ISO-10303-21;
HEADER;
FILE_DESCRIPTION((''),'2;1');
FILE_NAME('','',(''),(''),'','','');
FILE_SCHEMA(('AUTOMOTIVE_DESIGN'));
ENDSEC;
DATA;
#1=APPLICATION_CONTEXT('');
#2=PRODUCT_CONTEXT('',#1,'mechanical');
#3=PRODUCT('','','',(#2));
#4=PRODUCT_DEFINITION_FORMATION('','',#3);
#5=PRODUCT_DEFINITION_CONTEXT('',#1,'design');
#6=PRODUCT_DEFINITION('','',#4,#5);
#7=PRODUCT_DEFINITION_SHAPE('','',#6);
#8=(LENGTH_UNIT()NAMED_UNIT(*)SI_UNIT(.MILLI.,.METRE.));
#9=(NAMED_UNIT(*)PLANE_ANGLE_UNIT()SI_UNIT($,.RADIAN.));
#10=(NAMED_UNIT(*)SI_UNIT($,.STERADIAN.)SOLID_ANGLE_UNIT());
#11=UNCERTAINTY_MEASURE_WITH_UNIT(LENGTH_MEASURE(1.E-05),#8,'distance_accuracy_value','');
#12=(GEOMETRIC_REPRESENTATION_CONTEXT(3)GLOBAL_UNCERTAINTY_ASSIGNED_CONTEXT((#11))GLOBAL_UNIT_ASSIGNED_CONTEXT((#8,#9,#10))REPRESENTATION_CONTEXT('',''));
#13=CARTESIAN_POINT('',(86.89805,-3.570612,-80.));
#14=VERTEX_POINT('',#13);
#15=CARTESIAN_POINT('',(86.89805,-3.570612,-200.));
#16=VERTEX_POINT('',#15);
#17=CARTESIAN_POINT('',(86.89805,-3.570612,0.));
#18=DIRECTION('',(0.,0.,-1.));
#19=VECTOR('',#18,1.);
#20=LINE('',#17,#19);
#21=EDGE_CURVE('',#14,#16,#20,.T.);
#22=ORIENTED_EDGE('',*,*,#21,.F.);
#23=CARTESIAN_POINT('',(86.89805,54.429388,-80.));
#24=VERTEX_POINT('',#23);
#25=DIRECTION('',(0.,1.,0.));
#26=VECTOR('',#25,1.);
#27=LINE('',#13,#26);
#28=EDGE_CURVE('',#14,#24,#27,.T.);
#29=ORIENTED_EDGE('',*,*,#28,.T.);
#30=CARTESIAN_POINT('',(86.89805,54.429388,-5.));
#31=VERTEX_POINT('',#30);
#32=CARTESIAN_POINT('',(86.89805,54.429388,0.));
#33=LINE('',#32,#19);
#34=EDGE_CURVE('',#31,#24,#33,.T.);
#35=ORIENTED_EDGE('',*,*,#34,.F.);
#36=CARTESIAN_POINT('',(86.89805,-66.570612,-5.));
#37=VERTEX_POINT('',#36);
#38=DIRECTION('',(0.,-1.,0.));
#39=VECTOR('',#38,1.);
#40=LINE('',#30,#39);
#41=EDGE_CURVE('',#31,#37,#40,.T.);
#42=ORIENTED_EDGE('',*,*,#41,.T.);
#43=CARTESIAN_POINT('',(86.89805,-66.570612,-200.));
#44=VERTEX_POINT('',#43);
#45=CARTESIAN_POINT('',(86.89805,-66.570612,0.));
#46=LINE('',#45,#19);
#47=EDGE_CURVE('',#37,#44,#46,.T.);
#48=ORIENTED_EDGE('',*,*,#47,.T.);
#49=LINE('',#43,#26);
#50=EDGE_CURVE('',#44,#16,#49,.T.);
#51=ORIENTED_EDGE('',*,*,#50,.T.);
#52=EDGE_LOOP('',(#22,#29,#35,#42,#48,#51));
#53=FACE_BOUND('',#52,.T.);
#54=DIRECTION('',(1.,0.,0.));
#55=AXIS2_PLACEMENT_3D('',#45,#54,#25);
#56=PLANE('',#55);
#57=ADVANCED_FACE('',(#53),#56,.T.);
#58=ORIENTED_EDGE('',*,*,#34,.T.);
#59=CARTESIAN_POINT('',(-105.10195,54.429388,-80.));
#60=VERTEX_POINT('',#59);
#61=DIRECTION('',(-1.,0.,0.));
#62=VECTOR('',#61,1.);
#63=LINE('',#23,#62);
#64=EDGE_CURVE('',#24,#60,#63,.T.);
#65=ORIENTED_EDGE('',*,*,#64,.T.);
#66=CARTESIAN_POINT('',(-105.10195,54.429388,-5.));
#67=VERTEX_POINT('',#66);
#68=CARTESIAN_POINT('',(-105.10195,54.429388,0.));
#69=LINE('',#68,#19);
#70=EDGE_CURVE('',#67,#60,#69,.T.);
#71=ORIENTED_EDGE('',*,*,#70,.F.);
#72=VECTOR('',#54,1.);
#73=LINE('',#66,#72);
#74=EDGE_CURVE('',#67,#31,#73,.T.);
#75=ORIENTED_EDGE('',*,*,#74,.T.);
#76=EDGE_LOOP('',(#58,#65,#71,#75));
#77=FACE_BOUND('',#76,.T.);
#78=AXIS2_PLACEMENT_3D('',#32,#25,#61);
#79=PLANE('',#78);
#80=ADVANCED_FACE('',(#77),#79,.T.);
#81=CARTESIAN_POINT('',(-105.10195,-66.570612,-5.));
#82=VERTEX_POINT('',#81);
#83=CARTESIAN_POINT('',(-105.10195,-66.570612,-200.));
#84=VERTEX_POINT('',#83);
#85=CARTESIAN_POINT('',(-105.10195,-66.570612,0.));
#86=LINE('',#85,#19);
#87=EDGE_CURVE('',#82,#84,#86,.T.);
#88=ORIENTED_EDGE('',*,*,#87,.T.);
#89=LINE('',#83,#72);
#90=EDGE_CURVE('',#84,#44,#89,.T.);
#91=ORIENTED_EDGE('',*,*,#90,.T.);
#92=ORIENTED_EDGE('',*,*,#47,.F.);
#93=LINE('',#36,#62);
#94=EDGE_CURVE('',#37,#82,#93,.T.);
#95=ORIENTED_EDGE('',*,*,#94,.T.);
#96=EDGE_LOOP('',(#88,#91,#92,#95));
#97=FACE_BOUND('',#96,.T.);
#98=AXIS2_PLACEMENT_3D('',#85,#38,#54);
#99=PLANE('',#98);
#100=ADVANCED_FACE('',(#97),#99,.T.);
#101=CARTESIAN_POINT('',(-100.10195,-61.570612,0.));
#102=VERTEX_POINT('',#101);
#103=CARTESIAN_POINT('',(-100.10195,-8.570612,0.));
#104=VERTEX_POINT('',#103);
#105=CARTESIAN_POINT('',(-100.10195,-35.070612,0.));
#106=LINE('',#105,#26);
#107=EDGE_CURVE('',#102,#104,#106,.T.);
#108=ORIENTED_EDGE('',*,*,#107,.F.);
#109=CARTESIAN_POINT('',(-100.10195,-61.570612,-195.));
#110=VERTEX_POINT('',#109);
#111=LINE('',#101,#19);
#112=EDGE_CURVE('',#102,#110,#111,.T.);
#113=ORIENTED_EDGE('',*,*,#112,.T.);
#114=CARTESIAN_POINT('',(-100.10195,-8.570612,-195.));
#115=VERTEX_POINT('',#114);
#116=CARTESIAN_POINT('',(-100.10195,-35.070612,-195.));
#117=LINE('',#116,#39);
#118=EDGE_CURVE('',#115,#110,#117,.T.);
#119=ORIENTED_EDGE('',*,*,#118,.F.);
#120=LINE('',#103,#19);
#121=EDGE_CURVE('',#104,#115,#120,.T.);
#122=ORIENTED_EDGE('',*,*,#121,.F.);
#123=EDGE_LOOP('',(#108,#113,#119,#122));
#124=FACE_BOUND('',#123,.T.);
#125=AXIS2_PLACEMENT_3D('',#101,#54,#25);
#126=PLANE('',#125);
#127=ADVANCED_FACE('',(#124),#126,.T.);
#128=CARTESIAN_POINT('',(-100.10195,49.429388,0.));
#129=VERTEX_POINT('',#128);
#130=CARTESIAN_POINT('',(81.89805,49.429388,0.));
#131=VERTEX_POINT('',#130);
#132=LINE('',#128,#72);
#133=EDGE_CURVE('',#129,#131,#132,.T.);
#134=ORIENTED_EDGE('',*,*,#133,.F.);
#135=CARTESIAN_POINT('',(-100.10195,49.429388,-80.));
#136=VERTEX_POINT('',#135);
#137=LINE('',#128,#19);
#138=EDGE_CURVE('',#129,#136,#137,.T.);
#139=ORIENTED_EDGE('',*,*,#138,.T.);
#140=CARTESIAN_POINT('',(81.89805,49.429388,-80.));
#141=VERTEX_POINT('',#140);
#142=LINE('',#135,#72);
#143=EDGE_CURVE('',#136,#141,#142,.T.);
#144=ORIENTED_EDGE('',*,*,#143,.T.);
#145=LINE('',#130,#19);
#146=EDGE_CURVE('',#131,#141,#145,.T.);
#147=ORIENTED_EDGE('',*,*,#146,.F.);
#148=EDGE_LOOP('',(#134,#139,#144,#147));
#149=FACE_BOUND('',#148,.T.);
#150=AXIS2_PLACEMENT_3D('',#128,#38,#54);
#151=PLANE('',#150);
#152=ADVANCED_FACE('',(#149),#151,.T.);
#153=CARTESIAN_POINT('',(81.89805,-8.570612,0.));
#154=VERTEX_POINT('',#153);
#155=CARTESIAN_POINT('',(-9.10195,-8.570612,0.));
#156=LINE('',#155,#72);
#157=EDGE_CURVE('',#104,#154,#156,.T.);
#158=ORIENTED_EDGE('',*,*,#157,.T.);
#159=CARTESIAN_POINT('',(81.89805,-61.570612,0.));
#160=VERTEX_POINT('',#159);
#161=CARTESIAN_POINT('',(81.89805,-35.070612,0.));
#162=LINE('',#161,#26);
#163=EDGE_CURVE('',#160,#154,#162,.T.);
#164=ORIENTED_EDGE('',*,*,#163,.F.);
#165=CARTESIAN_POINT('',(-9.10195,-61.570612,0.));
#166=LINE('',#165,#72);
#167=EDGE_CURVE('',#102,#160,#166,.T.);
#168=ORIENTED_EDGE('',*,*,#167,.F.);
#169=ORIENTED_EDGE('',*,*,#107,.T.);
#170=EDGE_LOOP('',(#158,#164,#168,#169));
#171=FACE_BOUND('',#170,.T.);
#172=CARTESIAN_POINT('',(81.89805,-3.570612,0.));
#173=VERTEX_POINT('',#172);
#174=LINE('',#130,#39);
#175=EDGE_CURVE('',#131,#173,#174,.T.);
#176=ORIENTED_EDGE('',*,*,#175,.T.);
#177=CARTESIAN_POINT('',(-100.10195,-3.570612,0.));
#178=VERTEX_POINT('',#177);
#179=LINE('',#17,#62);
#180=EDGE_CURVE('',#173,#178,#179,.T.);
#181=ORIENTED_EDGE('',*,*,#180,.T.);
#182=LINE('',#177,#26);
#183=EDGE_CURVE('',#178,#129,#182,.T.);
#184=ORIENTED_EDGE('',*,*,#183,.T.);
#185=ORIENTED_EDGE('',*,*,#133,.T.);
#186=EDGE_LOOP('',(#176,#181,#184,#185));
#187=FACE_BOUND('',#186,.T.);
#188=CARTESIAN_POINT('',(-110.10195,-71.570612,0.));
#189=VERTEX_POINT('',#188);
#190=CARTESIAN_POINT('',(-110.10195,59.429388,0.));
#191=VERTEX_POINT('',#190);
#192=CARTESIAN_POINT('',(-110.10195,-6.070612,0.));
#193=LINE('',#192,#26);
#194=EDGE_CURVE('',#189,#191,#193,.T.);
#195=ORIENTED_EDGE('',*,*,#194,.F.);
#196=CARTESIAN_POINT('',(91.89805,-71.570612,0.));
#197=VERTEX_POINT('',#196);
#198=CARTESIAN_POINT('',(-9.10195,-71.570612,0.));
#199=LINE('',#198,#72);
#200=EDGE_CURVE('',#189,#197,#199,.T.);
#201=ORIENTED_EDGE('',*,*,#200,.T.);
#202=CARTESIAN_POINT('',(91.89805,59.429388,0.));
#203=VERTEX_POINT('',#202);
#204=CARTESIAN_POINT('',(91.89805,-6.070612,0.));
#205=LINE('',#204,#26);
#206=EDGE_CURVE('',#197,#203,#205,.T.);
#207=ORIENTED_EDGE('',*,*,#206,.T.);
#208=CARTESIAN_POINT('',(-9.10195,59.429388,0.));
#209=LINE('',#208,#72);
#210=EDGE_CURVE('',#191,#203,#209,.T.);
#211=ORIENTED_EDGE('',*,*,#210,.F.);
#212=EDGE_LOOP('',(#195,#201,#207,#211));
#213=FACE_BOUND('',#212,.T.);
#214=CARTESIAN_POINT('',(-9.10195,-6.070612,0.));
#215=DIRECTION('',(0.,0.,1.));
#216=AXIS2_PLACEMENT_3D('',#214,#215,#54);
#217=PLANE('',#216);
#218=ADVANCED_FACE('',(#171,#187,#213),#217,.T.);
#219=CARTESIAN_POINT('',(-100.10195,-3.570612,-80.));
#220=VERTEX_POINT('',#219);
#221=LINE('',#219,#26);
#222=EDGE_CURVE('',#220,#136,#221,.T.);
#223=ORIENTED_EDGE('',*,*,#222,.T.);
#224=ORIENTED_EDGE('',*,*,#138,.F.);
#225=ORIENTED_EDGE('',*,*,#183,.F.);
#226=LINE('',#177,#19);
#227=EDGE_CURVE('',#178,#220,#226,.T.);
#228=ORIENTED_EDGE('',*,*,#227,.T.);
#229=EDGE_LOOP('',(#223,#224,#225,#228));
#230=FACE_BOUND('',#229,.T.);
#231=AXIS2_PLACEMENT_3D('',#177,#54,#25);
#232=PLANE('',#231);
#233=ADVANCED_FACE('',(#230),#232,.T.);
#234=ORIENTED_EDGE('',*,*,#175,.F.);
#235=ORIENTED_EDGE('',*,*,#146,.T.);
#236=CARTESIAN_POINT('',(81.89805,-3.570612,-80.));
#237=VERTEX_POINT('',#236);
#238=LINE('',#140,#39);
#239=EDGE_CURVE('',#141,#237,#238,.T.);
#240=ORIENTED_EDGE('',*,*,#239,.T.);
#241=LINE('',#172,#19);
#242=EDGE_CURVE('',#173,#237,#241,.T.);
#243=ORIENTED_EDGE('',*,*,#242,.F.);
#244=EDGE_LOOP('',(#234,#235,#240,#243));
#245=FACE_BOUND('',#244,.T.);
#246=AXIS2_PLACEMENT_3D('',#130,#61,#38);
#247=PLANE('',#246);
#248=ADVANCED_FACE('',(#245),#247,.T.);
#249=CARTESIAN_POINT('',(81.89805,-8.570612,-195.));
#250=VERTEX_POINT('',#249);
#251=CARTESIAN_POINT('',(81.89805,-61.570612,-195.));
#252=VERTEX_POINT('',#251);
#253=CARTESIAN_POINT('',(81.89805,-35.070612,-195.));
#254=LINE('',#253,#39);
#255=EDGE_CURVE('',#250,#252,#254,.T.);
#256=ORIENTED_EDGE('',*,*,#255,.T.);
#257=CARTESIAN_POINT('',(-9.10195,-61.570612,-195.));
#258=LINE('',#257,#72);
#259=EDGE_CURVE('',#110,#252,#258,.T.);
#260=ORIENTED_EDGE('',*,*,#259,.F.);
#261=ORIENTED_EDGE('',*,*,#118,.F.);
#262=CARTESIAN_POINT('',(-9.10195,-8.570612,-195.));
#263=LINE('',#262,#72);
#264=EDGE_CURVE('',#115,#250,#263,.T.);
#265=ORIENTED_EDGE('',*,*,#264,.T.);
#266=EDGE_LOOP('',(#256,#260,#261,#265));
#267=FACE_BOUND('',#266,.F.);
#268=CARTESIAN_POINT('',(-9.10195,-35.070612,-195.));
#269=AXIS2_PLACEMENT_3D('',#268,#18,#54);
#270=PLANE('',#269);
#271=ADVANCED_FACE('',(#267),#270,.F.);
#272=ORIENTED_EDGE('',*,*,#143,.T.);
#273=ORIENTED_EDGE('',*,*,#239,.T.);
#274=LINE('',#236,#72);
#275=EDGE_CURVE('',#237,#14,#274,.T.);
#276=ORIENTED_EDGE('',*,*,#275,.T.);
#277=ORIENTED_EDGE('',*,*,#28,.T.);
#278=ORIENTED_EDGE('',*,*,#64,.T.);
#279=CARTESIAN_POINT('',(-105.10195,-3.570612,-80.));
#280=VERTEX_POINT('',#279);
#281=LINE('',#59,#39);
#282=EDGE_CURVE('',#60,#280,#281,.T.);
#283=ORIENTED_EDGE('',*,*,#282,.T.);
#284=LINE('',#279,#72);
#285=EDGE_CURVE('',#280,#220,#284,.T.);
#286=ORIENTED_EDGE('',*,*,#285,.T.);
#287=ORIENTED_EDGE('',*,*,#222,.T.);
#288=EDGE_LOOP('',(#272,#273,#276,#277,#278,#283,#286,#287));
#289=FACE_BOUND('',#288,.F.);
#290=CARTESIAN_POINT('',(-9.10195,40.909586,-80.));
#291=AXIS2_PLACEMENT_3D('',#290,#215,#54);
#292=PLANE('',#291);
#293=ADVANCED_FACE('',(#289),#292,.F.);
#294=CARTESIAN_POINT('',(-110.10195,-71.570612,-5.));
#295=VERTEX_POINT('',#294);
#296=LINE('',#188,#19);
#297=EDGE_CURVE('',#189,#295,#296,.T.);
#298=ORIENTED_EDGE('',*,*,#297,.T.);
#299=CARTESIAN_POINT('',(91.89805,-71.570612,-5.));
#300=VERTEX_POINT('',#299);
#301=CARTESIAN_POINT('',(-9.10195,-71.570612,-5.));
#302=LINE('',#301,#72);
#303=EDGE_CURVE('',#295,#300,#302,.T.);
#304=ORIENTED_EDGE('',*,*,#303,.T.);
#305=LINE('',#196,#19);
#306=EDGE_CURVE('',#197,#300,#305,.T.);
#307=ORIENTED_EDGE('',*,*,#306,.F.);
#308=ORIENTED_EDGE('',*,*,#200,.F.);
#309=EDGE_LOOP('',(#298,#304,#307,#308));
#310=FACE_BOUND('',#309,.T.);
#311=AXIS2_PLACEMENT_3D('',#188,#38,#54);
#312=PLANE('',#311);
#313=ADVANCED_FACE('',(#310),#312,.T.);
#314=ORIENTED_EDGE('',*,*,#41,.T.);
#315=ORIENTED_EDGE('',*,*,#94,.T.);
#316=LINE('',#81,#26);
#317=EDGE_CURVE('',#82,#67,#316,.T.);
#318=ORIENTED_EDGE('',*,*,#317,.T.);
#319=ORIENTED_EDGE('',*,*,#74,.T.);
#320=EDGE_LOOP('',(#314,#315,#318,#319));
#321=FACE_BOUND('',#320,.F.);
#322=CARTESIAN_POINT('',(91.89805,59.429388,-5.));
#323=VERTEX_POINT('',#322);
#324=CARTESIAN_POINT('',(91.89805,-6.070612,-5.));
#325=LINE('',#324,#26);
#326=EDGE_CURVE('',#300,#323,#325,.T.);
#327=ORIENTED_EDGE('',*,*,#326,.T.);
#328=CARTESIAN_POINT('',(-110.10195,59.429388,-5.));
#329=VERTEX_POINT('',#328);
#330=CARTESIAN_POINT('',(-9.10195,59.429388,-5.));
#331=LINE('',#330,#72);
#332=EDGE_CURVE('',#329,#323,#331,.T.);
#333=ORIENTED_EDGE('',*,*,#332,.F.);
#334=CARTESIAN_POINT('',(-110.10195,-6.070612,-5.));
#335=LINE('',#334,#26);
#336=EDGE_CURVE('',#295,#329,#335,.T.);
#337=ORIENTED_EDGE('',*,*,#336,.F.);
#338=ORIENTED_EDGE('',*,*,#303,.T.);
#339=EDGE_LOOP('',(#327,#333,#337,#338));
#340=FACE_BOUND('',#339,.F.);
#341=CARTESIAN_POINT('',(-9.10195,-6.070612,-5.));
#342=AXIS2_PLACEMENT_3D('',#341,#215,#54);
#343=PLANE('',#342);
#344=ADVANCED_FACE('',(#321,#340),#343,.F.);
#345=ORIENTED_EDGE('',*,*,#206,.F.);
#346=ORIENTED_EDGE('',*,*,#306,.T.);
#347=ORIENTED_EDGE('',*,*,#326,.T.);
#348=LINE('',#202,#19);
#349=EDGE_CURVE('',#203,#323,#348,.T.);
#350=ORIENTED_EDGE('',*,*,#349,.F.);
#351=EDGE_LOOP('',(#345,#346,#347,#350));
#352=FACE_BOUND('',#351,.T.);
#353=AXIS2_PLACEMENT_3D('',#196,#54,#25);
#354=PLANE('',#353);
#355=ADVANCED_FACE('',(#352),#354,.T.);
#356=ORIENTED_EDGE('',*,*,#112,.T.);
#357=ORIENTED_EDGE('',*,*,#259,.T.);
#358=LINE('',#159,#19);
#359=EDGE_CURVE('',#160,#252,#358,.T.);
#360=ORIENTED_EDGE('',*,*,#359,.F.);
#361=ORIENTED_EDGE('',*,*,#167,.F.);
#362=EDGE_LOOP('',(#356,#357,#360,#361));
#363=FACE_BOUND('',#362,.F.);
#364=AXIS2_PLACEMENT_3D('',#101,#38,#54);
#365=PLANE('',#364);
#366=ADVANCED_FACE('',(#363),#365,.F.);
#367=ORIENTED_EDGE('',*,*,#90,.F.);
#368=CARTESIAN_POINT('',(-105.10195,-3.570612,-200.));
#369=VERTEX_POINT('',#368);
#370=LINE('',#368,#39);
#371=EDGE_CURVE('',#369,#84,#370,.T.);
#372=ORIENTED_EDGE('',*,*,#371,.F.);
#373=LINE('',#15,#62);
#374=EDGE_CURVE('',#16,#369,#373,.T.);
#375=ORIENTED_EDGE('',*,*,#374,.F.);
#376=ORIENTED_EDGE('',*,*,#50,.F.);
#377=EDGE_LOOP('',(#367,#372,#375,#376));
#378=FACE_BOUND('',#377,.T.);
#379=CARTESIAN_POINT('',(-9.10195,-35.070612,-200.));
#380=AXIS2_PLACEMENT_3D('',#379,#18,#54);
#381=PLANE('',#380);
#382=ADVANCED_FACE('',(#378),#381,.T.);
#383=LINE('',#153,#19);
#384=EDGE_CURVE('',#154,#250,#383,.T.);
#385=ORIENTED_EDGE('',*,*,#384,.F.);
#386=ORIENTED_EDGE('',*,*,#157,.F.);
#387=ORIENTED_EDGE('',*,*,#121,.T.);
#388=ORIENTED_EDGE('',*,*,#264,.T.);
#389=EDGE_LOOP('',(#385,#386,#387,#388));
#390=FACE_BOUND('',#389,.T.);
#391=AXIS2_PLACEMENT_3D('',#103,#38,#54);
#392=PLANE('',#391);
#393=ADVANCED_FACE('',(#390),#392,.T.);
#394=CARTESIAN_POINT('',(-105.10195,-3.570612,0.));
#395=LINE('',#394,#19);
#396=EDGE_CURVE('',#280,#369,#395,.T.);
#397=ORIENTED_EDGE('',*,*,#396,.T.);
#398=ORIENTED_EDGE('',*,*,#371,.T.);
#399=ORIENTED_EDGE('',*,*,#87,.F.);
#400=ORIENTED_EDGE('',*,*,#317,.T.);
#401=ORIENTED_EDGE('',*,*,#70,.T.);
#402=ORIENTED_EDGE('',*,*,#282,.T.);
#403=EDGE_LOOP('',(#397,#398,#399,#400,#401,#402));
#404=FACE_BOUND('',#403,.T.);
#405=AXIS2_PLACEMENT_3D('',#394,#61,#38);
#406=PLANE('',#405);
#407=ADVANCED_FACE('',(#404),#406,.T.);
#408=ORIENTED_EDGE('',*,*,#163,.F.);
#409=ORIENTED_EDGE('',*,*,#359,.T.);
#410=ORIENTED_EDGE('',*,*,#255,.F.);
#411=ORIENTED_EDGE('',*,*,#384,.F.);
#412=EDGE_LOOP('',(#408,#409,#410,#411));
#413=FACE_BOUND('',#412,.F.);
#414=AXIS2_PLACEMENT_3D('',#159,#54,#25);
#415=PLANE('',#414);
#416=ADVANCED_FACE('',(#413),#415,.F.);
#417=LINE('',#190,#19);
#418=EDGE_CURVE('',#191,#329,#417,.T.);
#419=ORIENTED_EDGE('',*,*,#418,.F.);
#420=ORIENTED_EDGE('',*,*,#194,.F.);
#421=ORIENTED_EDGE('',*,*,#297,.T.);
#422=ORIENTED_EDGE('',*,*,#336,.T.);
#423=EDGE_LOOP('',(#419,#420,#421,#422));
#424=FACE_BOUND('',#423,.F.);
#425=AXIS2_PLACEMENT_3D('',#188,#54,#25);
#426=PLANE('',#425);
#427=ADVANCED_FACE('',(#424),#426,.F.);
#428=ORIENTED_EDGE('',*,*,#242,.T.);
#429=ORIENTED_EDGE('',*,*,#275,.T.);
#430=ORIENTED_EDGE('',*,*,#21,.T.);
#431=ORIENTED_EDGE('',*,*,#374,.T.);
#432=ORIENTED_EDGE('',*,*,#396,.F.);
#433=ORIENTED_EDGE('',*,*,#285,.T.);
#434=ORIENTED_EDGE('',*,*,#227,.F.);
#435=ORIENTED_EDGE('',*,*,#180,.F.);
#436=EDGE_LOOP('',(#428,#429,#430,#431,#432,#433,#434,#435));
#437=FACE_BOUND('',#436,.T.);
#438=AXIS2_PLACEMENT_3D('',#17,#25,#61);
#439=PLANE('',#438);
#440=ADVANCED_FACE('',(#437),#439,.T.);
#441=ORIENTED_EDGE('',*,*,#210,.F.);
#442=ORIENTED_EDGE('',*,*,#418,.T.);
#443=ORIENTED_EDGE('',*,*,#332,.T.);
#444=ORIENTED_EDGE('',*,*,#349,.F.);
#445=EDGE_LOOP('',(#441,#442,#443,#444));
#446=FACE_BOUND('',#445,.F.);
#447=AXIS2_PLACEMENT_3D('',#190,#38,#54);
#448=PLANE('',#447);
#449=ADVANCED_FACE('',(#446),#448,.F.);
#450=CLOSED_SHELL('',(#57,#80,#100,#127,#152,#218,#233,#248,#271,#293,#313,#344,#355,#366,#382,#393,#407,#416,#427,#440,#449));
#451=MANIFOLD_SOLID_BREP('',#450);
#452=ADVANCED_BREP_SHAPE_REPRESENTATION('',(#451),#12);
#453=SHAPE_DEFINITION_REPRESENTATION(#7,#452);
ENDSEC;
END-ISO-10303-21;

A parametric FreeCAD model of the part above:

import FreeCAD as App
import Part
import Sketcher

V = App.Vector


def add_polygon(sketch, points):
    """Adds a closed chain of lines whose ends are joined by coincident constraints."""
    first, n = sketch.GeometryCount, len(points)
    for a, b in zip(points, points[1:] + points[:1]):
        sketch.addGeometry(Part.LineSegment(App.Vector(*a, 0), App.Vector(*b, 0)), False)
    for i in range(n):
        sketch.addConstraint(Sketcher.Constraint("Coincident", first + i, 2, first + (i + 1) % n, 1))

doc = App.newDocument("Part")
body = doc.addObject("PartDesign::Body", "Body")

sketch1 = body.newObject("Sketcher::SketchObject", "Sketch")
sketch1.AttachmentSupport = (doc.getObject("XY_Plane"), [""])
sketch1.MapMode = "FlatFace"
add_polygon(sketch1, [(-105.10195, -3.570612), (-105.10195, -66.570612), (86.89805, -66.570612), (86.89805, -3.570612)])
add_polygon(sketch1, [(81.89805, -61.570612), (-100.10195, -61.570612), (-100.10195, -8.570612), (81.89805, -8.570612)])
sketch1.addConstraint([
    Sketcher.Constraint("Vertical", 0),
    Sketcher.Constraint("Horizontal", 1),
    Sketcher.Constraint("Vertical", 2),
    Sketcher.Constraint("Horizontal", 3),
    Sketcher.Constraint("Horizontal", 4),
    Sketcher.Constraint("Vertical", 5),
    Sketcher.Constraint("Horizontal", 6),
    Sketcher.Constraint("Vertical", 7),
    Sketcher.Constraint("DistanceX", 1, 1, 1, 2, 192.0),
    Sketcher.Constraint("DistanceX", 4, 2, 4, 1, 182.0),
    Sketcher.Constraint("DistanceY", 0, 2, 0, 1, 63.0),
    Sketcher.Constraint("DistanceY", 5, 1, 5, 2, 53.0),
    Sketcher.Constraint("DistanceX", 0, 2, 4, 2, 5.0),
    Sketcher.Constraint("DistanceY", 0, 2, 4, 2, 5.0),
    Sketcher.Constraint("DistanceX", 0, 2, -1, 1, 105.10195),
    Sketcher.Constraint("DistanceY", 0, 2, -1, 1, 66.570612),
])
pad1 = body.newObject("PartDesign::Pad", "Pad")
pad1.Profile = sketch1
pad1.Length = 200
pad1.Reversed = True

sketch2 = body.newObject("Sketcher::SketchObject", "Sketch001")
sketch2.AttachmentSupport = (doc.getObject("XY_Plane"), [""])
sketch2.MapMode = "FlatFace"
add_polygon(sketch2, [(-100.10195, -3.570612), (-100.10195, 49.429388), (81.89805, 49.429388), (81.89805, -3.570612), (86.89805, -3.570612), (86.89805, 54.429388), (-105.10195, 54.429388), (-105.10195, -3.570612)])
sketch2.addConstraint([
    Sketcher.Constraint("Vertical", 0),
    Sketcher.Constraint("Horizontal", 1),
    Sketcher.Constraint("Vertical", 2),
    Sketcher.Constraint("Horizontal", 3),
    Sketcher.Constraint("Vertical", 4),
    Sketcher.Constraint("Horizontal", 5),
    Sketcher.Constraint("Vertical", 6),
    Sketcher.Constraint("Horizontal", 7),
    Sketcher.Constraint("Horizontal", 3, 2, 6, 2),
    Sketcher.Constraint("Equal", 3, 7),
    Sketcher.Constraint("DistanceX", 1, 1, 1, 2, 182.0),
    Sketcher.Constraint("DistanceX", 3, 1, 3, 2, 5.0),
    Sketcher.Constraint("DistanceY", 0, 1, 0, 2, 53.0),
    Sketcher.Constraint("DistanceY", 4, 1, 4, 2, 58.0),
    Sketcher.Constraint("DistanceX", 0, 2, -1, 1, 100.10195),
    Sketcher.Constraint("DistanceY", -1, 1, 0, 2, 49.429388),
])
pad2 = body.newObject("PartDesign::Pad", "Pad001")
pad2.Profile = sketch2
pad2.Length = 80
pad2.Reversed = True

sketch3 = body.newObject("Sketcher::SketchObject", "Sketch002")
sketch3.AttachmentSupport = (doc.getObject("XY_Plane"), [""])
sketch3.MapMode = "FlatFace"
sketch3.AttachmentOffset = App.Placement(V(0, 0, -200), App.Rotation())
add_polygon(sketch3, [(-100.10195, -61.570612), (-100.10195, -8.570612), (81.89805, -8.570612), (81.89805, -61.570612)])
sketch3.addConstraint([
    Sketcher.Constraint("Vertical", 0),
    Sketcher.Constraint("Horizontal", 1),
    Sketcher.Constraint("Vertical", 2),
    Sketcher.Constraint("Horizontal", 3),
    Sketcher.Constraint("DistanceX", 1, 1, 1, 2, 182.0),
    Sketcher.Constraint("DistanceY", 0, 1, 0, 2, 53.0),
    Sketcher.Constraint("DistanceX", 0, 2, -1, 1, 100.10195),
    Sketcher.Constraint("DistanceY", 2, 2, -1, 1, 61.570612),
])
pad3 = body.newObject("PartDesign::Pad", "Pad002")
pad3.Profile = sketch3
pad3.Length = 5

sketch4 = body.newObject("Sketcher::SketchObject", "Sketch003")
sketch4.AttachmentSupport = (doc.getObject("XY_Plane"), [""])
sketch4.MapMode = "FlatFace"
add_polygon(sketch4, [(-110.10195, 59.429388), (-110.10195, -71.570612), (91.89805, -71.570612), (91.89805, 59.429388)])
add_polygon(sketch4, [(86.89805, -66.570612), (-105.10195, -66.570612), (-105.10195, 54.429388), (86.89805, 54.429388)])
sketch4.addConstraint([
    Sketcher.Constraint("Vertical", 0),
    Sketcher.Constraint("Horizontal", 1),
    Sketcher.Constraint("Vertical", 2),
    Sketcher.Constraint("Horizontal", 3),
    Sketcher.Constraint("Horizontal", 4),
    Sketcher.Constraint("Vertical", 5),
    Sketcher.Constraint("Horizontal", 6),
    Sketcher.Constraint("Vertical", 7),
    Sketcher.Constraint("DistanceX", 1, 1, 1, 2, 202.0),
    Sketcher.Constraint("DistanceX", 4, 2, 4, 1, 192.0),
    Sketcher.Constraint("DistanceY", 0, 2, 0, 1, 131.0),
    Sketcher.Constraint("DistanceY", 5, 1, 5, 2, 121.0),
    Sketcher.Constraint("DistanceX", 0, 2, 4, 2, 5.0),
    Sketcher.Constraint("DistanceY", 0, 2, 4, 2, 5.0),
    Sketcher.Constraint("DistanceX", 0, 2, -1, 1, 110.10195),
    Sketcher.Constraint("DistanceY", 0, 2, -1, 1, 71.570612),
])
pad4 = body.newObject("PartDesign::Pad", "Pad003")
pad4.Profile = sketch4
pad4.Length = 5
pad4.Reversed = True

doc.recompute()
